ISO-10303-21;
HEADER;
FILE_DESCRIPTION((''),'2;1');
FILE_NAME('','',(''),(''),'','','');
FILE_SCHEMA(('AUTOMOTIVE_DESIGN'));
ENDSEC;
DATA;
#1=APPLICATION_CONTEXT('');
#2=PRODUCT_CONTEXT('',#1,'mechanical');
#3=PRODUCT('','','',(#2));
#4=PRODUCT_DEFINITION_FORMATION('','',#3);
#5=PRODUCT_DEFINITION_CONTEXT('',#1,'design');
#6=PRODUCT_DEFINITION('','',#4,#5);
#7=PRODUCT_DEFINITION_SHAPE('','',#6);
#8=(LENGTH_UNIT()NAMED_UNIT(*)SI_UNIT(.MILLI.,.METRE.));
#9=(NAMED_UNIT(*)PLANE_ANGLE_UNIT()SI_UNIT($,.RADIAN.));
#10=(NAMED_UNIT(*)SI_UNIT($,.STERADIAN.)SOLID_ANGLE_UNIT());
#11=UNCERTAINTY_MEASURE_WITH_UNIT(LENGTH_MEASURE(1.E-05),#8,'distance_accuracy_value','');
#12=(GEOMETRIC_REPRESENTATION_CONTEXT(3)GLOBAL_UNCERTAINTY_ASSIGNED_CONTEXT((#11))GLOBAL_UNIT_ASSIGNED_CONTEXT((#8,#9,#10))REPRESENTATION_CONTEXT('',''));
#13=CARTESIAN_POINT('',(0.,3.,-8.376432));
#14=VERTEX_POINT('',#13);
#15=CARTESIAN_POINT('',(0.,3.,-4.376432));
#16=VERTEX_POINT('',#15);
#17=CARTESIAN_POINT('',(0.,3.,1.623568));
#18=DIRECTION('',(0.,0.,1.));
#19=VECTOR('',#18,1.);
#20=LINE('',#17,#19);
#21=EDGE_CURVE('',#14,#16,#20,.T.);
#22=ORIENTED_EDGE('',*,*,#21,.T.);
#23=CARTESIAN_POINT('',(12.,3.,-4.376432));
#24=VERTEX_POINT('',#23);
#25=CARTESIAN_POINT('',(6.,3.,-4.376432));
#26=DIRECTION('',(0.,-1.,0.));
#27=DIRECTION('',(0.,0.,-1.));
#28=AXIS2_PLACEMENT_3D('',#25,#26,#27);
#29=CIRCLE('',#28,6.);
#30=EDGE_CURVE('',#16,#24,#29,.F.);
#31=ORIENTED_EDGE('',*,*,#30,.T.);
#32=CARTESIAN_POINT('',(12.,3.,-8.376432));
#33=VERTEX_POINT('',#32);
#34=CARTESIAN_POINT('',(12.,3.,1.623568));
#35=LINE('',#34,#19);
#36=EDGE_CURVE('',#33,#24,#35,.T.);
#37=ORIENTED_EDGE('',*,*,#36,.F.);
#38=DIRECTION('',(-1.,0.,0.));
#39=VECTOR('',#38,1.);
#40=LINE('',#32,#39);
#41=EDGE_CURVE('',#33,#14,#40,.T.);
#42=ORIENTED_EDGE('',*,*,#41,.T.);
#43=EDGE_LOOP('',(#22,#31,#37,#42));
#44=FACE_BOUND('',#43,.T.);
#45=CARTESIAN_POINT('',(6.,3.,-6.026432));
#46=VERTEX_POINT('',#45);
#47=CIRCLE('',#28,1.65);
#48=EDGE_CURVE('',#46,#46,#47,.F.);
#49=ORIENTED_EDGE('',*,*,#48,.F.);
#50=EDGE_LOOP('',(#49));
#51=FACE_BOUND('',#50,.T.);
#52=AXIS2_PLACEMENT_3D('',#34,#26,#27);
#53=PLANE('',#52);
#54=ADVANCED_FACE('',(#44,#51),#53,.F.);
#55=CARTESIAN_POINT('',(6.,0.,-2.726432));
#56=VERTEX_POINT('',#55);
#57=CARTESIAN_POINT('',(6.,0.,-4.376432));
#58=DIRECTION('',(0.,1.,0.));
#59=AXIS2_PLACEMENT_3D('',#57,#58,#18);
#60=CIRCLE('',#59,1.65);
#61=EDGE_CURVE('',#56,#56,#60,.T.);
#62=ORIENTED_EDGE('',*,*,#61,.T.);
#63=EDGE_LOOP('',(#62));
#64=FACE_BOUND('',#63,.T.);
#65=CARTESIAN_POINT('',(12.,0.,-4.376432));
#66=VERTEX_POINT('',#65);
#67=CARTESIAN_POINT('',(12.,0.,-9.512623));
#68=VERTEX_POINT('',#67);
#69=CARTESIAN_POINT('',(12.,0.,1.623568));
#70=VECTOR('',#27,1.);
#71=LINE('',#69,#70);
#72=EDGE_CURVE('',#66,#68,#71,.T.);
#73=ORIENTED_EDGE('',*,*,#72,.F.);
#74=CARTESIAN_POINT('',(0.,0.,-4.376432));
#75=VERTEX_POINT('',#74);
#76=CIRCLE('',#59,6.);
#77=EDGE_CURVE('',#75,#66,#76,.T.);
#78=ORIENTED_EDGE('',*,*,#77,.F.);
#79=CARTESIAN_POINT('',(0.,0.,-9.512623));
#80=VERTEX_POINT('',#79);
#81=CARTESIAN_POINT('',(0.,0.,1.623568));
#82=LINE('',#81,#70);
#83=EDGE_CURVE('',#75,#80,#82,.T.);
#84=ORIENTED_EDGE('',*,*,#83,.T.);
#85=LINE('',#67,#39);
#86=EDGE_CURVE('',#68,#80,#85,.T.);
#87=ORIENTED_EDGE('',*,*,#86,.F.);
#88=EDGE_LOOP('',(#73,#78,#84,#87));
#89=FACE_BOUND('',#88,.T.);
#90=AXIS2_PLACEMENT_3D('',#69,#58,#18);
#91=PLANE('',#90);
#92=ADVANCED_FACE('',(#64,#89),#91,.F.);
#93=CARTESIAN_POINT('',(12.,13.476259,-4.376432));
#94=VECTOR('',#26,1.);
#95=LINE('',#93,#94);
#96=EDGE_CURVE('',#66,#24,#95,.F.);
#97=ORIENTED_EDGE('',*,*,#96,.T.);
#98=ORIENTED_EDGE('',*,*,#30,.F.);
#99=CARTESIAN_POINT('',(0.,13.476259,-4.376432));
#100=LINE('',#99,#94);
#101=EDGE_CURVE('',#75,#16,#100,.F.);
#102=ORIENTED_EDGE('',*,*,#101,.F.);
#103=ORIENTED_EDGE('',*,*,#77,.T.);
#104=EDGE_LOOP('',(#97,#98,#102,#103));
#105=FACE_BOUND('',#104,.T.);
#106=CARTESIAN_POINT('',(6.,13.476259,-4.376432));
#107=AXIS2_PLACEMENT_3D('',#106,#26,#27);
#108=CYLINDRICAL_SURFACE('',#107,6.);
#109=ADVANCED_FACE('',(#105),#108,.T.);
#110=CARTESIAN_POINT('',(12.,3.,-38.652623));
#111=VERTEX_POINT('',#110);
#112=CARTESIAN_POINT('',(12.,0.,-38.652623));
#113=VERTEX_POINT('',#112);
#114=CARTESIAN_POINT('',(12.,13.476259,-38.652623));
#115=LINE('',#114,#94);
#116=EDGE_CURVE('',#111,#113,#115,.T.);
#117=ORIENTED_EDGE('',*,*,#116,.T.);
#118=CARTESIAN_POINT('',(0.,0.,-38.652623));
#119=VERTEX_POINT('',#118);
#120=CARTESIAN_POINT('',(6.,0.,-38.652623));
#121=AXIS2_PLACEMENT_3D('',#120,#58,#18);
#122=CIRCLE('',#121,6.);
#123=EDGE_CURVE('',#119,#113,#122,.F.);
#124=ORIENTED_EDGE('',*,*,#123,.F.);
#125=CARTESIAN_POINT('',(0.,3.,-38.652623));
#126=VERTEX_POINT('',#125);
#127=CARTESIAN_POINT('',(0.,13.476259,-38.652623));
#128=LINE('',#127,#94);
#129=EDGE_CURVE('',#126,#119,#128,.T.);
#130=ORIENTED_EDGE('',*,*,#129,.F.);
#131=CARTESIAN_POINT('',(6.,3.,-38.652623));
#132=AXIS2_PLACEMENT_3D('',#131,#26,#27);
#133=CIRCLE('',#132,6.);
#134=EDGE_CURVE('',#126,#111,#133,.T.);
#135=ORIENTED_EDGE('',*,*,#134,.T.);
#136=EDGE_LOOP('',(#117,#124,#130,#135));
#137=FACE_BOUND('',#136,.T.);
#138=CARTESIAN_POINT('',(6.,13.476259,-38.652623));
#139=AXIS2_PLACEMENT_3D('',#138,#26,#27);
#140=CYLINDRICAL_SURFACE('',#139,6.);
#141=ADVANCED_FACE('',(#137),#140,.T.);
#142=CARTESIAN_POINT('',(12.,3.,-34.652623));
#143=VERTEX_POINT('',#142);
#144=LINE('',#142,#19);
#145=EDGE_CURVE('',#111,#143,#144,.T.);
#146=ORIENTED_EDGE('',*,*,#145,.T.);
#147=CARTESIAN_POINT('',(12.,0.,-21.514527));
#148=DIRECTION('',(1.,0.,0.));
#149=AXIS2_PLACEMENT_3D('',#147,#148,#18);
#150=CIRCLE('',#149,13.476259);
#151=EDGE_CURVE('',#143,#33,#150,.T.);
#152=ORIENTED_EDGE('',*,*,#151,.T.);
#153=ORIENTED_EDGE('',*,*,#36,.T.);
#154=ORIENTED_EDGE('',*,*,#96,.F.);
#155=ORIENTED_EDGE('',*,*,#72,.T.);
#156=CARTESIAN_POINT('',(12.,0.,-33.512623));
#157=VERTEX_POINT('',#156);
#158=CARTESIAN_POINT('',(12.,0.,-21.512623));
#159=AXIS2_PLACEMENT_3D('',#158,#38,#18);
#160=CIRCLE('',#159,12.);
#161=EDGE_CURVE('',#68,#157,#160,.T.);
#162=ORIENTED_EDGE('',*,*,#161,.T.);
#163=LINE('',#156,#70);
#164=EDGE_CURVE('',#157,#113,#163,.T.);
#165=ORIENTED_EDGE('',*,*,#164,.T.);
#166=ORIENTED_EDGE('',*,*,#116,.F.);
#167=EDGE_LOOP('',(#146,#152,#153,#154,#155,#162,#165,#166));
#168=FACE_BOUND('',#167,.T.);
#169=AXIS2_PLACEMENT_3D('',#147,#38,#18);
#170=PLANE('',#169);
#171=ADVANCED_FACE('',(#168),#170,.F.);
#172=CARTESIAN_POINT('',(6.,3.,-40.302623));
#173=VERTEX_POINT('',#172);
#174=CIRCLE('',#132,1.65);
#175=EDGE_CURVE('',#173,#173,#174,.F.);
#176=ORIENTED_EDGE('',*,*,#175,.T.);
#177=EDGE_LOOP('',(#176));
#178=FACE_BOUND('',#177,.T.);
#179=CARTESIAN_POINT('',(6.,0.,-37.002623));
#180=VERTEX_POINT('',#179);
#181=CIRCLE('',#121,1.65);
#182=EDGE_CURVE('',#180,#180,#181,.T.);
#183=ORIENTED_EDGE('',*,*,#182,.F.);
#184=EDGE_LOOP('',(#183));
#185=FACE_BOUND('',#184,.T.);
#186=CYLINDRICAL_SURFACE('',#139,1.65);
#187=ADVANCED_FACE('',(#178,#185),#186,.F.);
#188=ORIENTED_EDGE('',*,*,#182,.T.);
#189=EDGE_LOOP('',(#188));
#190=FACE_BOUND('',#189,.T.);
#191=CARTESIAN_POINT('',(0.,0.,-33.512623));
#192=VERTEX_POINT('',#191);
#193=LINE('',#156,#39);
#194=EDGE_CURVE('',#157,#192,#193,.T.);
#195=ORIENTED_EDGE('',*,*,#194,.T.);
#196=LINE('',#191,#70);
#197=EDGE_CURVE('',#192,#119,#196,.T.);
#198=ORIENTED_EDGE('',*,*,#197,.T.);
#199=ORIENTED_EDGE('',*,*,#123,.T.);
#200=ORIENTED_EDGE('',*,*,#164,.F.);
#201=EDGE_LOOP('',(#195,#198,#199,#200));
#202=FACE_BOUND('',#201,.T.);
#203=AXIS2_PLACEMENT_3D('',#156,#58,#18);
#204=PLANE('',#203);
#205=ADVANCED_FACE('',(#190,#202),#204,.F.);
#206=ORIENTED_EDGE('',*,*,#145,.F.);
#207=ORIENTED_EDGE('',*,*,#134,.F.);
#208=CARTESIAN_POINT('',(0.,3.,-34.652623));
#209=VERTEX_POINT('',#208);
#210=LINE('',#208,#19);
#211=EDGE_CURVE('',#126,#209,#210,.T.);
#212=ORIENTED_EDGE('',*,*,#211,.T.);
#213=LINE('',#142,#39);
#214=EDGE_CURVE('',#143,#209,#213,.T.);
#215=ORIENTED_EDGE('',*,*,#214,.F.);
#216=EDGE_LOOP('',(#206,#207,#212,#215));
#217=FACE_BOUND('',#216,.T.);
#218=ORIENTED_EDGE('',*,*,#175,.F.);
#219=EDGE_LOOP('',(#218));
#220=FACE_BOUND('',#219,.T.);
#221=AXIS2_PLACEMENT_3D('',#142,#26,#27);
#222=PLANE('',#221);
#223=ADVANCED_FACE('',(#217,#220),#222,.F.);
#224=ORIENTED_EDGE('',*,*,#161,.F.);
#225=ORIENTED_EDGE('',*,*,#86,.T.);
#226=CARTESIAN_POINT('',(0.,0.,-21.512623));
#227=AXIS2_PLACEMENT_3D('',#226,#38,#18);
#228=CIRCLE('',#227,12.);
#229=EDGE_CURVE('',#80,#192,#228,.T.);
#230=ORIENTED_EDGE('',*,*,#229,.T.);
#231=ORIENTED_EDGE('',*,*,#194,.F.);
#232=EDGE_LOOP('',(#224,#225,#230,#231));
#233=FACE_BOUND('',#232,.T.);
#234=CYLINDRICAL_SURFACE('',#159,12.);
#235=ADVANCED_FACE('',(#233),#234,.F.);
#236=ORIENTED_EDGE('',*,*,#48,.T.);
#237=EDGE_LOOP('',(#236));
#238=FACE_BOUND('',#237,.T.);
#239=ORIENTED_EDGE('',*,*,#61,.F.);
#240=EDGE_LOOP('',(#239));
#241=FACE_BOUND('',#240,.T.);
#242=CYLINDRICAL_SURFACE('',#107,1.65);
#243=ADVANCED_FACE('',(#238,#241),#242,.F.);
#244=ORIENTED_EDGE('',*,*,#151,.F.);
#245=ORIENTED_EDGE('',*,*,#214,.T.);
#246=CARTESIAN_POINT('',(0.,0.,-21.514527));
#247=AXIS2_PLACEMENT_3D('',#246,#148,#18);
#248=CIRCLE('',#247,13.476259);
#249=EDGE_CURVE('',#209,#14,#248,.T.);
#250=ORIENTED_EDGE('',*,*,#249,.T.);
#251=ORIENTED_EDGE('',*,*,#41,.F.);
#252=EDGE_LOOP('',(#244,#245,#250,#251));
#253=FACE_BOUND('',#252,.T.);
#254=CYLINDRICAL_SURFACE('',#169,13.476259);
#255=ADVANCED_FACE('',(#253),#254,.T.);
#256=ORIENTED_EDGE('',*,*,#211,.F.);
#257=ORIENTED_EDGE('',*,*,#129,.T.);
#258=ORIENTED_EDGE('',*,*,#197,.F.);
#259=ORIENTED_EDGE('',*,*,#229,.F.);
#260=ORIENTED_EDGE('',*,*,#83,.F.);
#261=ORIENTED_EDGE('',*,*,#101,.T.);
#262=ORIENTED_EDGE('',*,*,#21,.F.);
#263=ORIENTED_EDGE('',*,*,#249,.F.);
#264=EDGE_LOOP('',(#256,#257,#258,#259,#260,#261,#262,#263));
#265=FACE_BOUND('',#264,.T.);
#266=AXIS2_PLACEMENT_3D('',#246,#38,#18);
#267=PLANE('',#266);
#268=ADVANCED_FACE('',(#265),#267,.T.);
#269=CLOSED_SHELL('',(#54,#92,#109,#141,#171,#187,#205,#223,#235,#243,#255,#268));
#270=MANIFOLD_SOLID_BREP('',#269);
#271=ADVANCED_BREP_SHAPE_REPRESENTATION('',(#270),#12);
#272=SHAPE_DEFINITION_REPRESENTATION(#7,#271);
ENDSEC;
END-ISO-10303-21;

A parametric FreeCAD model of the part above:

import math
import FreeCAD as App
import Part
import Sketcher

V = App.Vector

doc = App.newDocument("Part")
params = doc.addObject("Spreadsheet::Sheet", "Params")
for row, (alias, value) in enumerate([
    ("sketch1_radius", "12 mm"),
    ("sketch1_width", "3 mm"),
    ("sketch1_height", "10 mm"),
    ("sketch1_height2", "11.14 mm"),
    ("pad1_length", "12 mm"),
    ("sketch2_radius", "6 mm"),
    ("sketch2_diameter", "3.3 mm"),
], start=1):
    params.set(f"A{row}", alias)
    params.set(f"B{row}", "=" + value)
    params.setAlias(f"B{row}", alias)

body = doc.addObject("PartDesign::Body", "Body")

# Sketch on YZ plane
sketch1 = body.newObject("Sketcher::SketchObject", "Sketch")
sketch1.AttachmentSupport = (doc.getObject("YZ_Plane"), [""])
sketch1.MapMode = "FlatFace"
sketch1.addGeometry([
    Part.LineSegment(V(0, 1.6, 0), V(0, -9.5, 0)),  # 0
    Part.ArcOfCircle(Part.Circle(V(0, -21.5, 0), V(0, 0, 1), 12), math.radians(-90), math.radians(90)),  # 1
    Part.LineSegment(V(0, -33.5, 0), V(0, -44.7, 0)),  # 2
    Part.LineSegment(V(0, -44.7, 0), V(3, -44.7, 0)),  # 3
    Part.LineSegment(V(3, -44.7, 0), V(3, -34.7, 0)),  # 4
    Part.ArcOfCircle(Part.Circle(V(0, -21.5, 0), V(0, 0, 1), 13.5), math.radians(-77), math.radians(77)),  # 5
    Part.LineSegment(V(3, -8.4, 0), V(3, 1.6, 0)),  # 6
    Part.LineSegment(V(3, 1.6, 0), V(0, 1.6, 0)),  # 7
], False)
sketch1.addConstraint([
    Sketcher.Constraint("Coincident", 0, 2, 1, 2),
    Sketcher.Constraint("Coincident", 1, 1, 2, 1),
    Sketcher.Constraint("Coincident", 2, 2, 3, 1),
    Sketcher.Constraint("Coincident", 3, 2, 4, 1),
    Sketcher.Constraint("Coincident", 4, 2, 5, 1),
    Sketcher.Constraint("Coincident", 5, 2, 6, 1),
    Sketcher.Constraint("Coincident", 6, 2, 7, 1),
    Sketcher.Constraint("Coincident", 7, 2, 0, 1),
    Sketcher.Constraint("Vertical", 0),
    Sketcher.Constraint("Vertical", 2),
    Sketcher.Constraint("Horizontal", 3),
    Sketcher.Constraint("Vertical", 4),
    Sketcher.Constraint("Vertical", 6),
    Sketcher.Constraint("Horizontal", 7),
    Sketcher.Constraint("PointOnObject", 1, 3, -2),
    Sketcher.Constraint("PointOnObject", 5, 3, -2),
    Sketcher.Constraint("PointOnObject", 0, 2, -2),
    Sketcher.Constraint("PointOnObject", 1, 1, -2),
    Sketcher.Constraint("Vertical", 4, 2, 5, 2),
    Sketcher.Constraint("Equal", 4, 6),
    Sketcher.Constraint("Radius", 1, 12.0),
    Sketcher.Constraint("DistanceX", 3, 1, 3, 2, 3.0),
    Sketcher.Constraint("DistanceY", 4, 1, 4, 2, 10.0),
    Sketcher.Constraint("DistanceY", 2, 2, 2, 1, 11.14),
    Sketcher.Constraint("Radius", 5, 13.476259),
    Sketcher.Constraint("DistanceY", 5, 2, -1, 1, 8.376432),
])
sketch1.setExpression("Constraints[20]", "Params.sketch1_radius")
sketch1.setExpression("Constraints[21]", "Params.sketch1_width")
sketch1.setExpression("Constraints[22]", "Params.sketch1_height")
sketch1.setExpression("Constraints[23]", "Params.sketch1_height2")
pad1 = body.newObject("PartDesign::Pad", "Pad")
pad1.Profile = sketch1
pad1.setExpression("Length", "Params.pad1_length")

# Sketch on XZ plane
sketch2 = body.newObject("Sketcher::SketchObject", "Sketch001")
sketch2.AttachmentSupport = (doc.getObject("XZ_Plane"), [""])
sketch2.MapMode = "FlatFace"
sketch2.addGeometry([
    Part.LineSegment(V(0, -44.7, 0), V(0, -38.7, 0)),  # 0
    Part.ArcOfCircle(Part.Circle(V(6, -38.7, 0), V(0, 0, 1), 6), math.radians(180), math.radians(270)),  # 1
    Part.LineSegment(V(6, -44.7, 0), V(0, -44.7, 0)),  # 2
    Part.LineSegment(V(12, -44.7, 0), V(6, -44.7, 0)),  # 3
    Part.ArcOfCircle(Part.Circle(V(6, -38.7, 0), V(0, 0, 1), 6), math.radians(-90), math.radians(0)),  # 4
    Part.LineSegment(V(12, -38.7, 0), V(12, -44.7, 0)),  # 5
    Part.LineSegment(V(12, 1.6, 0), V(12, -4.4, 0)),  # 6
    Part.ArcOfCircle(Part.Circle(V(6, -4.4, 0), V(0, 0, 1), 6), math.radians(0), math.radians(90)),  # 7
    Part.LineSegment(V(6, 1.6, 0), V(12, 1.6, 0)),  # 8
    Part.LineSegment(V(0, 1.6, 0), V(6, 1.6, 0)),  # 9
    Part.ArcOfCircle(Part.Circle(V(6, -4.4, 0), V(0, 0, 1), 6), math.radians(90), math.radians(180)),  # 10
    Part.LineSegment(V(0, -4.4, 0), V(0, 1.6, 0)),  # 11
    Part.Circle(V(6, -4.4, 0), V(0, 0, 1), 1.6),  # 12
    Part.Circle(V(6, -38.7, 0), V(0, 0, 1), 1.6),  # 13
], False)
sketch2.addConstraint([
    Sketcher.Constraint("Tangent", 0, 2, 1, 1),
    Sketcher.Constraint("Tangent", 1, 2, 2, 1),
    Sketcher.Constraint("Coincident", 2, 2, 0, 1),
    Sketcher.Constraint("Tangent", 3, 2, 4, 1),
    Sketcher.Constraint("Tangent", 4, 2, 5, 1),
    Sketcher.Constraint("Coincident", 5, 2, 3, 1),
    Sketcher.Constraint("Tangent", 6, 2, 7, 1),
    Sketcher.Constraint("Tangent", 7, 2, 8, 1),
    Sketcher.Constraint("Coincident", 8, 2, 6, 1),
    Sketcher.Constraint("Tangent", 9, 2, 10, 1),
    Sketcher.Constraint("Tangent", 10, 2, 11, 1),
    Sketcher.Constraint("Coincident", 11, 2, 9, 1),
    Sketcher.Constraint("Vertical", 0),
    Sketcher.Constraint("Horizontal", 2),
    Sketcher.Constraint("Horizontal", 3),
    Sketcher.Constraint("Vertical", 5),
    Sketcher.Constraint("Vertical", 6),
    Sketcher.Constraint("Horizontal", 8),
    Sketcher.Constraint("Horizontal", 9),
    Sketcher.Constraint("Vertical", 11),
    Sketcher.Constraint("Coincident", 4, 3, 1, 3),
    Sketcher.Constraint("Coincident", 10, 3, 7, 3),
    Sketcher.Constraint("Coincident", 12, 3, 7, 3),
    Sketcher.Constraint("Coincident", 13, 3, 1, 3),
    Sketcher.Constraint("Equal", 1, 4),
    Sketcher.Constraint("Equal", 4, 7),
    Sketcher.Constraint("Equal", 7, 10),
    Sketcher.Constraint("Equal", 12, 13),
    Sketcher.Constraint("PointOnObject", 0, 2, -2),
    Sketcher.Constraint("PointOnObject", 10, 2, -2),
    Sketcher.Constraint("Radius", 1, 6.0),
    Sketcher.Constraint("Diameter", 12, 3.3),
    Sketcher.Constraint("DistanceY", 7, 3, -1, 1, 4.376432),
    Sketcher.Constraint("DistanceY", 1, 3, 7, 3, 34.276191),
])
sketch2.setExpression("Constraints[30]", "Params.sketch2_radius")
sketch2.setExpression("Constraints[31]", "Params.sketch2_diameter")
pocket1 = body.newObject("PartDesign::Pocket", "Pocket")
pocket1.Profile = sketch2
pocket1.Type = "ThroughAll"

doc.recompute()
